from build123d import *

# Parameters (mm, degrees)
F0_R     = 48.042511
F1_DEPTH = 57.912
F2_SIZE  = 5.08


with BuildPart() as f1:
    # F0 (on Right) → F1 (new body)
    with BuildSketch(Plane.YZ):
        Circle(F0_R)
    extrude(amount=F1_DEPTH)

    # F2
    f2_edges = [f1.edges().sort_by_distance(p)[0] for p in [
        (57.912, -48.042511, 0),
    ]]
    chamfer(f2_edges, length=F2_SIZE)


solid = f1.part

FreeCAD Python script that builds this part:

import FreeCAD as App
import Part
import Sketcher
from FreeCAD import Vector
Q = App.Units.Quantity


def edges_at(feature, points):
    """Names of the edges that pass closest to the given points."""
    edges = feature.Shape.Edges
    near = lambda p: min(range(len(edges)), key=lambda i: edges[i].distToShape(Part.Vertex(*p))[0])
    return sorted({f"Edge{near(p) + 1}" for p in points})

doc = App.newDocument("Part")
body = doc.addObject("PartDesign::Body", "Body")

# Sketch on YZ plane
sketch1 = body.newObject("Sketcher::SketchObject", "Sketch")
sketch1.AttachmentSupport = (doc.getObject("YZ_Plane"), [""])
sketch1.MapMode = "FlatFace"
sketch1.addGeometry(Part.Circle(Vector(0, 0, 0), Vector(0, 0, 1), 48.042511), False)
sketch1.addConstraint([
    Sketcher.Constraint("Coincident", 0, 3, -1, 1),
    Sketcher.Constraint("Diameter", 0, Q("96.085022 mm")),
])
pad1 = body.newObject("PartDesign::Pad", "Pad")
pad1.Profile = sketch1
pad1.Length = Q("2.28 in")
doc.recompute()

chamfer = body.newObject("PartDesign::Chamfer", "Chamfer")
chamfer.Base = (pad1, edges_at(pad1, [(57.912, -48.043, 0)]))
chamfer.Size = Q("0.2 in")

doc.recompute()
